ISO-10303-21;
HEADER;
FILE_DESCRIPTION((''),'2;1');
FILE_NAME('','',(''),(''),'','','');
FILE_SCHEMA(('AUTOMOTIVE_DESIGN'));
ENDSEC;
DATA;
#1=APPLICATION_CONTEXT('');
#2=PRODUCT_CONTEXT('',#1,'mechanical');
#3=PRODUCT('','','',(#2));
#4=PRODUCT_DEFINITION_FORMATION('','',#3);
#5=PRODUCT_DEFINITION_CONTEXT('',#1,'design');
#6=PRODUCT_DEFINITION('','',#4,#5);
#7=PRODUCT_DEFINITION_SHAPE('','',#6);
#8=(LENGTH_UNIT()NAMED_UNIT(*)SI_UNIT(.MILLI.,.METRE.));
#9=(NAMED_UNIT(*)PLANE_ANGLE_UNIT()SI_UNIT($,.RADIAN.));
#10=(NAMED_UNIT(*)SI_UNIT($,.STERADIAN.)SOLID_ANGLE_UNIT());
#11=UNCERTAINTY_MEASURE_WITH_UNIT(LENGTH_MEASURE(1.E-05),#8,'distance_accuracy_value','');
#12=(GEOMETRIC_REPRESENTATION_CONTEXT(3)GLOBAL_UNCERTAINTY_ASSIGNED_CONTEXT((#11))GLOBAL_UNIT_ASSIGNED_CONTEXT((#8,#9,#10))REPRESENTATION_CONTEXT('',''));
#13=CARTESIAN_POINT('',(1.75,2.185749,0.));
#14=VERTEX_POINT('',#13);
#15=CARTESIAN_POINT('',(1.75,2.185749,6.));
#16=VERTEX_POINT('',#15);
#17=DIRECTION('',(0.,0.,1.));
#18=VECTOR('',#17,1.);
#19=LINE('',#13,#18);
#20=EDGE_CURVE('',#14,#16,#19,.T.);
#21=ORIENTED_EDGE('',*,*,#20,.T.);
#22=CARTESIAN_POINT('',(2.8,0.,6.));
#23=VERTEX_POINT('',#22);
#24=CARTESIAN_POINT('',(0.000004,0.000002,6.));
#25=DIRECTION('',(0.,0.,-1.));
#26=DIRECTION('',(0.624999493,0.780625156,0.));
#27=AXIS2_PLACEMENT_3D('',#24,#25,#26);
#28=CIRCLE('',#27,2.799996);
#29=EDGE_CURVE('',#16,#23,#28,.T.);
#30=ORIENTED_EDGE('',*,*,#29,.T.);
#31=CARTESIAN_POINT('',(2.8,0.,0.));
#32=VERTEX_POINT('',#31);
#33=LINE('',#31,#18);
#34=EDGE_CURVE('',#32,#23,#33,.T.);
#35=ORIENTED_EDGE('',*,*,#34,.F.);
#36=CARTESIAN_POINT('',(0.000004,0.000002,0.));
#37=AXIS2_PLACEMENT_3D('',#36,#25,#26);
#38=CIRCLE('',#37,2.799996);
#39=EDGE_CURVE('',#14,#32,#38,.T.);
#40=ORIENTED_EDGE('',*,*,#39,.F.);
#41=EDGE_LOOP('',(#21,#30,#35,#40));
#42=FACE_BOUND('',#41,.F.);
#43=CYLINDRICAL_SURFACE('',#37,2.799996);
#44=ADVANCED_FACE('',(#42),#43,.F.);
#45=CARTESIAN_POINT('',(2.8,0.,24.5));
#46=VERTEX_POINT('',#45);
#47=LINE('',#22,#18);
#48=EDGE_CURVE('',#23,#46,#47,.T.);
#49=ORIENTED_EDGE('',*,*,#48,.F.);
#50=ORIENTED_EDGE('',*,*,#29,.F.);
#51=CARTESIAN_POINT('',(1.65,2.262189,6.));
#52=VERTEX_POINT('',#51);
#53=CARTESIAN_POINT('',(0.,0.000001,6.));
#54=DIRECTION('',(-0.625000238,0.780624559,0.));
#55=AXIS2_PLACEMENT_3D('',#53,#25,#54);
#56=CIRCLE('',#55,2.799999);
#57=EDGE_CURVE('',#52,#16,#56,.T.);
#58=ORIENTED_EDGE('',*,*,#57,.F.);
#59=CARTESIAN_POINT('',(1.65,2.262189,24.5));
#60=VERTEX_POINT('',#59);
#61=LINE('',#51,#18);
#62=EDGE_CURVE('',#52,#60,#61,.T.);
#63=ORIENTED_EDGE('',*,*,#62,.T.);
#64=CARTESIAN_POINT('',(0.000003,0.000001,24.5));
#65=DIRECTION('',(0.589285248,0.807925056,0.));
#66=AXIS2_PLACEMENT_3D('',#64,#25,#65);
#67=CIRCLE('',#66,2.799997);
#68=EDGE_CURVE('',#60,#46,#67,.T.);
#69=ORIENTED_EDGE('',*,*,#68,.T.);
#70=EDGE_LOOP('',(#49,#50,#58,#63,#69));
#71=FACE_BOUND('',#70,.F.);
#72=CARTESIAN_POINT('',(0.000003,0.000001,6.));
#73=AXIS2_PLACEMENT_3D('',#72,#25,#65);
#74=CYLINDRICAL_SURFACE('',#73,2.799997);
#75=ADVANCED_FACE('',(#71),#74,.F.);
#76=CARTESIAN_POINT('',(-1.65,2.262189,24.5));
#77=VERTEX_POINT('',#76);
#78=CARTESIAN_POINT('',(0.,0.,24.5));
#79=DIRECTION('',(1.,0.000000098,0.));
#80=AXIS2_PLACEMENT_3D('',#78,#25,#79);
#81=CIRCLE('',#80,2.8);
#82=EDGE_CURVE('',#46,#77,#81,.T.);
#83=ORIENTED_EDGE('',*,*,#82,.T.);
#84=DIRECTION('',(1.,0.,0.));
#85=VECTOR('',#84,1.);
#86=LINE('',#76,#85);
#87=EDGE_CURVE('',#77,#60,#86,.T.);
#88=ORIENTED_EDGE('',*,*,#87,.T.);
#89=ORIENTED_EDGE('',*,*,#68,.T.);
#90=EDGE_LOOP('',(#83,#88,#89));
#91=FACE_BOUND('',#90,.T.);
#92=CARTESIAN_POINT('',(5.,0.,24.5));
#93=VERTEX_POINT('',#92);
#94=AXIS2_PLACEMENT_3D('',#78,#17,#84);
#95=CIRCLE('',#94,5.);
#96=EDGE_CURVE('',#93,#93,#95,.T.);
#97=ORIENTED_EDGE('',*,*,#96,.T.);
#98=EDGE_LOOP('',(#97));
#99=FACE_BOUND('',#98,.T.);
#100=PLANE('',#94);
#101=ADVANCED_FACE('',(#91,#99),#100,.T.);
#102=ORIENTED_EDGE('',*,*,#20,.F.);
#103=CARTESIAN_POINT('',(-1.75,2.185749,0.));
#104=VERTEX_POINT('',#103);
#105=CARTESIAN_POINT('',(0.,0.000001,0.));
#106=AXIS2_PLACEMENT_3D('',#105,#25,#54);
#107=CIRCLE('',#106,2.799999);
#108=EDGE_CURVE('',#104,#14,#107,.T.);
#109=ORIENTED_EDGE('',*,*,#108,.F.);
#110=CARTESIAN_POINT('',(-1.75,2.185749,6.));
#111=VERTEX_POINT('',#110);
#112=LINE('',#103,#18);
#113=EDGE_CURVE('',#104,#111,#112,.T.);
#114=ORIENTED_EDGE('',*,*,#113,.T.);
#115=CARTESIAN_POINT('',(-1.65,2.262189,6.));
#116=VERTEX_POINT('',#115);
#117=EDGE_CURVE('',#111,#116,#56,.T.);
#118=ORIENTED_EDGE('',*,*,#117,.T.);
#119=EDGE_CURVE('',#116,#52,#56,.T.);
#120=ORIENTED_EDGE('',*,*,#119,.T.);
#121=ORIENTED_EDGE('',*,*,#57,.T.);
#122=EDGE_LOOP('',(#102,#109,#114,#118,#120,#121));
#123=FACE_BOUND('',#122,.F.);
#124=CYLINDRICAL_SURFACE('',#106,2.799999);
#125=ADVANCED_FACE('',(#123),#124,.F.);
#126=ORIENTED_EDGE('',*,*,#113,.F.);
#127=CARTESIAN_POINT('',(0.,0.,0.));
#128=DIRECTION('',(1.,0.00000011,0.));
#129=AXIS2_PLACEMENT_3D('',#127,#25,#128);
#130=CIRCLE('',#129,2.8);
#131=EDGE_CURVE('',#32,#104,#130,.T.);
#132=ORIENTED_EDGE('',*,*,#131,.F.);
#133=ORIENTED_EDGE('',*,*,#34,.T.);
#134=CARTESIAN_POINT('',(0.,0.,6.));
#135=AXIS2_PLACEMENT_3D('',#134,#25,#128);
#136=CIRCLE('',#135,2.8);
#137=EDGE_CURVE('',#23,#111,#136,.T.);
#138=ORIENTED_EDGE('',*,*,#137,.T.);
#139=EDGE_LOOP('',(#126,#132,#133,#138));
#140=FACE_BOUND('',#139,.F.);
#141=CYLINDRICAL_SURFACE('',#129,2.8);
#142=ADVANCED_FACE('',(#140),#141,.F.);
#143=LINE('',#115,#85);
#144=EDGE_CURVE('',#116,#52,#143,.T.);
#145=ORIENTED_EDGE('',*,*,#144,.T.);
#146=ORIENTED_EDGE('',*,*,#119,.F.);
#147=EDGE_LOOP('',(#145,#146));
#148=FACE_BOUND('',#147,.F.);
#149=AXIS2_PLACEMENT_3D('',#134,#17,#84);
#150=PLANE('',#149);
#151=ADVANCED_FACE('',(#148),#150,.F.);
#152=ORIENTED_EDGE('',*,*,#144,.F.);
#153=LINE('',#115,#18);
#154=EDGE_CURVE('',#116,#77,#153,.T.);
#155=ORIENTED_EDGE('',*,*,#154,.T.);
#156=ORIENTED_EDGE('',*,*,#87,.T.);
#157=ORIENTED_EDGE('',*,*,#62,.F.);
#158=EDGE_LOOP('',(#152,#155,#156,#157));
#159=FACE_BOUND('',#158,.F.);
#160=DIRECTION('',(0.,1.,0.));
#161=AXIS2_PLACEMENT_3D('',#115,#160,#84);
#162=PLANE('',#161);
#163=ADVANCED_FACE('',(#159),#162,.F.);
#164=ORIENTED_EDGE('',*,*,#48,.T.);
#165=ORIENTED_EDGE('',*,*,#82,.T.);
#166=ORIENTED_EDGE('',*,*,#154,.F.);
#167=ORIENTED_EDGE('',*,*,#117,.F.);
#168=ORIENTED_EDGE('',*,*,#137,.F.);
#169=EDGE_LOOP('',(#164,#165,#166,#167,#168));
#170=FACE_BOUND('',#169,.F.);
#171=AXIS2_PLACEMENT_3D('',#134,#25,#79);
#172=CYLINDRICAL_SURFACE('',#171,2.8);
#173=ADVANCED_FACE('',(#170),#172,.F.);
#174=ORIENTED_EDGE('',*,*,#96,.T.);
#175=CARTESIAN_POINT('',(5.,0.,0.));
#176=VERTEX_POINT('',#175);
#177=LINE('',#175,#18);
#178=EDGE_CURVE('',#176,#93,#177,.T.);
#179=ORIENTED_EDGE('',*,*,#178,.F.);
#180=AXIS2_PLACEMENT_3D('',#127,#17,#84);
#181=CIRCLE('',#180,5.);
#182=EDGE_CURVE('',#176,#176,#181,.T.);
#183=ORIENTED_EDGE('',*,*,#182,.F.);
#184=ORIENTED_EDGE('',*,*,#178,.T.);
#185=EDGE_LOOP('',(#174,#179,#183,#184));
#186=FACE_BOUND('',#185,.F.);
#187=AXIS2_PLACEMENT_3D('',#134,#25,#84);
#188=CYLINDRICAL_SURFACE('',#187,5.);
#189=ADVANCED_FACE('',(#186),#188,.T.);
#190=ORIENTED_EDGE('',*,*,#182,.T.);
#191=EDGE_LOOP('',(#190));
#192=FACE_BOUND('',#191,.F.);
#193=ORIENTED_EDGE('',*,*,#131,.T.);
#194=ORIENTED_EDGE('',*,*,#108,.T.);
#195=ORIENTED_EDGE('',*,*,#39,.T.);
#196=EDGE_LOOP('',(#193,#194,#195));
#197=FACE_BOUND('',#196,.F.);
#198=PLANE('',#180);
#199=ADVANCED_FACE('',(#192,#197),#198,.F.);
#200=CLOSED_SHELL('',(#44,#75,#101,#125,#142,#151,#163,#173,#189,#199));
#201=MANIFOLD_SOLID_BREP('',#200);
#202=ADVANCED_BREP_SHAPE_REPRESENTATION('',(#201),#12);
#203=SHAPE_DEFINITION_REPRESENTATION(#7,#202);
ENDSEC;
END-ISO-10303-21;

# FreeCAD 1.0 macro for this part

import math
import FreeCAD as App
import Part
import Sketcher
from FreeCAD import Vector
Q = App.Units.Quantity

doc = App.newDocument("Part")
body = doc.addObject("PartDesign::Body", "Body")

sketch1 = body.newObject("Sketcher::SketchObject", "Sketch")
sketch1.AttachmentSupport = (doc.getObject("XY_Plane"), [""])
sketch1.MapMode = "FlatFace"
sketch1.addGeometry([
    Part.Circle(Vector(0, 0, 0), Vector(0, 0, 1), 5),
    Part.ArcOfCircle(Part.Circle(Vector(0, 0, 0), Vector(0, 0, 1), 2.8), math.radians(51), math.radians(129)),
    Part.ArcOfCircle(Part.Circle(Vector(0, 0, 0), Vector(0, 0, 1), 2.8), math.radians(0), math.radians(51)),
    Part.ArcOfCircle(Part.Circle(Vector(0, 0, 0), Vector(0, 0, 1), 2.8), math.radians(129), math.radians(360)),
], False)
sketch1.addConstraint([
    Sketcher.Constraint("Tangent", 1, 1, 2, 2),
    Sketcher.Constraint("Tangent", 2, 1, 3, 2),
    Sketcher.Constraint("Tangent", 3, 1, 1, 2),
    Sketcher.Constraint("Coincident", 0, 3, -1, 1),
    Sketcher.Constraint("Coincident", 1, 3, -1, 1),
    Sketcher.Constraint("PointOnObject", 2, 1, -1),
    Sketcher.Constraint("Horizontal", 1, 1, 3, 1),
    Sketcher.Constraint("Diameter", 0, Q("10 mm")),
    Sketcher.Constraint("Radius", 1, Q("2.799999 mm")),
    Sketcher.Constraint("DistanceX", 3, 1, 1, 1, Q("3.5 mm")),
])
pad1 = body.newObject("PartDesign::Pad", "Pad")
pad1.Profile = sketch1
pad1.Length = 6

sketch2 = body.newObject("Sketcher::SketchObject", "Sketch001")
sketch2.AttachmentSupport = (doc.getObject("XY_Plane"), [""])
sketch2.MapMode = "FlatFace"
sketch2.AttachmentOffset = App.Placement(Vector(0, 0, 6), App.Rotation())
sketch2.addGeometry([
    Part.Circle(Vector(0, 0, 0), Vector(0, 0, 1), 5),
    Part.ArcOfCircle(Part.Circle(Vector(0, 0, 0), Vector(0, 0, 1), 2.8), math.radians(0), math.radians(54)),
    Part.ArcOfCircle(Part.Circle(Vector(0, 0, 0), Vector(0, 0, 1), 2.8), math.radians(126), math.radians(360)),
    Part.LineSegment(Vector(-1.6, 2.3, 0), Vector(1.6, 2.3, 0)),
], False)
sketch2.addConstraint([
    Sketcher.Constraint("Tangent", 1, 1, 2, 2),
    Sketcher.Constraint("Coincident", 2, 1, 3, 1),
    Sketcher.Constraint("Coincident", 3, 2, 1, 2),
    Sketcher.Constraint("Horizontal", 3),
    Sketcher.Constraint("Coincident", 0, 3, -1, 1),
    Sketcher.Constraint("Coincident", 1, 3, -1, 1),
    Sketcher.Constraint("PointOnObject", 1, 1, -1),
    Sketcher.Constraint("Diameter", 0, Q("10 mm")),
    Sketcher.Constraint("Radius", 2, Q("2.8 mm")),
    Sketcher.Constraint("DistanceX", 3, 1, 3, 2, Q("3.3 mm")),
    Sketcher.Constraint("DistanceX", -1, 1, 1, 1, Q("2.8 mm")),
])
pad2 = body.newObject("PartDesign::Pad", "Pad001")
pad2.Profile = sketch2
pad2.Length = 18.5

doc.recompute()
